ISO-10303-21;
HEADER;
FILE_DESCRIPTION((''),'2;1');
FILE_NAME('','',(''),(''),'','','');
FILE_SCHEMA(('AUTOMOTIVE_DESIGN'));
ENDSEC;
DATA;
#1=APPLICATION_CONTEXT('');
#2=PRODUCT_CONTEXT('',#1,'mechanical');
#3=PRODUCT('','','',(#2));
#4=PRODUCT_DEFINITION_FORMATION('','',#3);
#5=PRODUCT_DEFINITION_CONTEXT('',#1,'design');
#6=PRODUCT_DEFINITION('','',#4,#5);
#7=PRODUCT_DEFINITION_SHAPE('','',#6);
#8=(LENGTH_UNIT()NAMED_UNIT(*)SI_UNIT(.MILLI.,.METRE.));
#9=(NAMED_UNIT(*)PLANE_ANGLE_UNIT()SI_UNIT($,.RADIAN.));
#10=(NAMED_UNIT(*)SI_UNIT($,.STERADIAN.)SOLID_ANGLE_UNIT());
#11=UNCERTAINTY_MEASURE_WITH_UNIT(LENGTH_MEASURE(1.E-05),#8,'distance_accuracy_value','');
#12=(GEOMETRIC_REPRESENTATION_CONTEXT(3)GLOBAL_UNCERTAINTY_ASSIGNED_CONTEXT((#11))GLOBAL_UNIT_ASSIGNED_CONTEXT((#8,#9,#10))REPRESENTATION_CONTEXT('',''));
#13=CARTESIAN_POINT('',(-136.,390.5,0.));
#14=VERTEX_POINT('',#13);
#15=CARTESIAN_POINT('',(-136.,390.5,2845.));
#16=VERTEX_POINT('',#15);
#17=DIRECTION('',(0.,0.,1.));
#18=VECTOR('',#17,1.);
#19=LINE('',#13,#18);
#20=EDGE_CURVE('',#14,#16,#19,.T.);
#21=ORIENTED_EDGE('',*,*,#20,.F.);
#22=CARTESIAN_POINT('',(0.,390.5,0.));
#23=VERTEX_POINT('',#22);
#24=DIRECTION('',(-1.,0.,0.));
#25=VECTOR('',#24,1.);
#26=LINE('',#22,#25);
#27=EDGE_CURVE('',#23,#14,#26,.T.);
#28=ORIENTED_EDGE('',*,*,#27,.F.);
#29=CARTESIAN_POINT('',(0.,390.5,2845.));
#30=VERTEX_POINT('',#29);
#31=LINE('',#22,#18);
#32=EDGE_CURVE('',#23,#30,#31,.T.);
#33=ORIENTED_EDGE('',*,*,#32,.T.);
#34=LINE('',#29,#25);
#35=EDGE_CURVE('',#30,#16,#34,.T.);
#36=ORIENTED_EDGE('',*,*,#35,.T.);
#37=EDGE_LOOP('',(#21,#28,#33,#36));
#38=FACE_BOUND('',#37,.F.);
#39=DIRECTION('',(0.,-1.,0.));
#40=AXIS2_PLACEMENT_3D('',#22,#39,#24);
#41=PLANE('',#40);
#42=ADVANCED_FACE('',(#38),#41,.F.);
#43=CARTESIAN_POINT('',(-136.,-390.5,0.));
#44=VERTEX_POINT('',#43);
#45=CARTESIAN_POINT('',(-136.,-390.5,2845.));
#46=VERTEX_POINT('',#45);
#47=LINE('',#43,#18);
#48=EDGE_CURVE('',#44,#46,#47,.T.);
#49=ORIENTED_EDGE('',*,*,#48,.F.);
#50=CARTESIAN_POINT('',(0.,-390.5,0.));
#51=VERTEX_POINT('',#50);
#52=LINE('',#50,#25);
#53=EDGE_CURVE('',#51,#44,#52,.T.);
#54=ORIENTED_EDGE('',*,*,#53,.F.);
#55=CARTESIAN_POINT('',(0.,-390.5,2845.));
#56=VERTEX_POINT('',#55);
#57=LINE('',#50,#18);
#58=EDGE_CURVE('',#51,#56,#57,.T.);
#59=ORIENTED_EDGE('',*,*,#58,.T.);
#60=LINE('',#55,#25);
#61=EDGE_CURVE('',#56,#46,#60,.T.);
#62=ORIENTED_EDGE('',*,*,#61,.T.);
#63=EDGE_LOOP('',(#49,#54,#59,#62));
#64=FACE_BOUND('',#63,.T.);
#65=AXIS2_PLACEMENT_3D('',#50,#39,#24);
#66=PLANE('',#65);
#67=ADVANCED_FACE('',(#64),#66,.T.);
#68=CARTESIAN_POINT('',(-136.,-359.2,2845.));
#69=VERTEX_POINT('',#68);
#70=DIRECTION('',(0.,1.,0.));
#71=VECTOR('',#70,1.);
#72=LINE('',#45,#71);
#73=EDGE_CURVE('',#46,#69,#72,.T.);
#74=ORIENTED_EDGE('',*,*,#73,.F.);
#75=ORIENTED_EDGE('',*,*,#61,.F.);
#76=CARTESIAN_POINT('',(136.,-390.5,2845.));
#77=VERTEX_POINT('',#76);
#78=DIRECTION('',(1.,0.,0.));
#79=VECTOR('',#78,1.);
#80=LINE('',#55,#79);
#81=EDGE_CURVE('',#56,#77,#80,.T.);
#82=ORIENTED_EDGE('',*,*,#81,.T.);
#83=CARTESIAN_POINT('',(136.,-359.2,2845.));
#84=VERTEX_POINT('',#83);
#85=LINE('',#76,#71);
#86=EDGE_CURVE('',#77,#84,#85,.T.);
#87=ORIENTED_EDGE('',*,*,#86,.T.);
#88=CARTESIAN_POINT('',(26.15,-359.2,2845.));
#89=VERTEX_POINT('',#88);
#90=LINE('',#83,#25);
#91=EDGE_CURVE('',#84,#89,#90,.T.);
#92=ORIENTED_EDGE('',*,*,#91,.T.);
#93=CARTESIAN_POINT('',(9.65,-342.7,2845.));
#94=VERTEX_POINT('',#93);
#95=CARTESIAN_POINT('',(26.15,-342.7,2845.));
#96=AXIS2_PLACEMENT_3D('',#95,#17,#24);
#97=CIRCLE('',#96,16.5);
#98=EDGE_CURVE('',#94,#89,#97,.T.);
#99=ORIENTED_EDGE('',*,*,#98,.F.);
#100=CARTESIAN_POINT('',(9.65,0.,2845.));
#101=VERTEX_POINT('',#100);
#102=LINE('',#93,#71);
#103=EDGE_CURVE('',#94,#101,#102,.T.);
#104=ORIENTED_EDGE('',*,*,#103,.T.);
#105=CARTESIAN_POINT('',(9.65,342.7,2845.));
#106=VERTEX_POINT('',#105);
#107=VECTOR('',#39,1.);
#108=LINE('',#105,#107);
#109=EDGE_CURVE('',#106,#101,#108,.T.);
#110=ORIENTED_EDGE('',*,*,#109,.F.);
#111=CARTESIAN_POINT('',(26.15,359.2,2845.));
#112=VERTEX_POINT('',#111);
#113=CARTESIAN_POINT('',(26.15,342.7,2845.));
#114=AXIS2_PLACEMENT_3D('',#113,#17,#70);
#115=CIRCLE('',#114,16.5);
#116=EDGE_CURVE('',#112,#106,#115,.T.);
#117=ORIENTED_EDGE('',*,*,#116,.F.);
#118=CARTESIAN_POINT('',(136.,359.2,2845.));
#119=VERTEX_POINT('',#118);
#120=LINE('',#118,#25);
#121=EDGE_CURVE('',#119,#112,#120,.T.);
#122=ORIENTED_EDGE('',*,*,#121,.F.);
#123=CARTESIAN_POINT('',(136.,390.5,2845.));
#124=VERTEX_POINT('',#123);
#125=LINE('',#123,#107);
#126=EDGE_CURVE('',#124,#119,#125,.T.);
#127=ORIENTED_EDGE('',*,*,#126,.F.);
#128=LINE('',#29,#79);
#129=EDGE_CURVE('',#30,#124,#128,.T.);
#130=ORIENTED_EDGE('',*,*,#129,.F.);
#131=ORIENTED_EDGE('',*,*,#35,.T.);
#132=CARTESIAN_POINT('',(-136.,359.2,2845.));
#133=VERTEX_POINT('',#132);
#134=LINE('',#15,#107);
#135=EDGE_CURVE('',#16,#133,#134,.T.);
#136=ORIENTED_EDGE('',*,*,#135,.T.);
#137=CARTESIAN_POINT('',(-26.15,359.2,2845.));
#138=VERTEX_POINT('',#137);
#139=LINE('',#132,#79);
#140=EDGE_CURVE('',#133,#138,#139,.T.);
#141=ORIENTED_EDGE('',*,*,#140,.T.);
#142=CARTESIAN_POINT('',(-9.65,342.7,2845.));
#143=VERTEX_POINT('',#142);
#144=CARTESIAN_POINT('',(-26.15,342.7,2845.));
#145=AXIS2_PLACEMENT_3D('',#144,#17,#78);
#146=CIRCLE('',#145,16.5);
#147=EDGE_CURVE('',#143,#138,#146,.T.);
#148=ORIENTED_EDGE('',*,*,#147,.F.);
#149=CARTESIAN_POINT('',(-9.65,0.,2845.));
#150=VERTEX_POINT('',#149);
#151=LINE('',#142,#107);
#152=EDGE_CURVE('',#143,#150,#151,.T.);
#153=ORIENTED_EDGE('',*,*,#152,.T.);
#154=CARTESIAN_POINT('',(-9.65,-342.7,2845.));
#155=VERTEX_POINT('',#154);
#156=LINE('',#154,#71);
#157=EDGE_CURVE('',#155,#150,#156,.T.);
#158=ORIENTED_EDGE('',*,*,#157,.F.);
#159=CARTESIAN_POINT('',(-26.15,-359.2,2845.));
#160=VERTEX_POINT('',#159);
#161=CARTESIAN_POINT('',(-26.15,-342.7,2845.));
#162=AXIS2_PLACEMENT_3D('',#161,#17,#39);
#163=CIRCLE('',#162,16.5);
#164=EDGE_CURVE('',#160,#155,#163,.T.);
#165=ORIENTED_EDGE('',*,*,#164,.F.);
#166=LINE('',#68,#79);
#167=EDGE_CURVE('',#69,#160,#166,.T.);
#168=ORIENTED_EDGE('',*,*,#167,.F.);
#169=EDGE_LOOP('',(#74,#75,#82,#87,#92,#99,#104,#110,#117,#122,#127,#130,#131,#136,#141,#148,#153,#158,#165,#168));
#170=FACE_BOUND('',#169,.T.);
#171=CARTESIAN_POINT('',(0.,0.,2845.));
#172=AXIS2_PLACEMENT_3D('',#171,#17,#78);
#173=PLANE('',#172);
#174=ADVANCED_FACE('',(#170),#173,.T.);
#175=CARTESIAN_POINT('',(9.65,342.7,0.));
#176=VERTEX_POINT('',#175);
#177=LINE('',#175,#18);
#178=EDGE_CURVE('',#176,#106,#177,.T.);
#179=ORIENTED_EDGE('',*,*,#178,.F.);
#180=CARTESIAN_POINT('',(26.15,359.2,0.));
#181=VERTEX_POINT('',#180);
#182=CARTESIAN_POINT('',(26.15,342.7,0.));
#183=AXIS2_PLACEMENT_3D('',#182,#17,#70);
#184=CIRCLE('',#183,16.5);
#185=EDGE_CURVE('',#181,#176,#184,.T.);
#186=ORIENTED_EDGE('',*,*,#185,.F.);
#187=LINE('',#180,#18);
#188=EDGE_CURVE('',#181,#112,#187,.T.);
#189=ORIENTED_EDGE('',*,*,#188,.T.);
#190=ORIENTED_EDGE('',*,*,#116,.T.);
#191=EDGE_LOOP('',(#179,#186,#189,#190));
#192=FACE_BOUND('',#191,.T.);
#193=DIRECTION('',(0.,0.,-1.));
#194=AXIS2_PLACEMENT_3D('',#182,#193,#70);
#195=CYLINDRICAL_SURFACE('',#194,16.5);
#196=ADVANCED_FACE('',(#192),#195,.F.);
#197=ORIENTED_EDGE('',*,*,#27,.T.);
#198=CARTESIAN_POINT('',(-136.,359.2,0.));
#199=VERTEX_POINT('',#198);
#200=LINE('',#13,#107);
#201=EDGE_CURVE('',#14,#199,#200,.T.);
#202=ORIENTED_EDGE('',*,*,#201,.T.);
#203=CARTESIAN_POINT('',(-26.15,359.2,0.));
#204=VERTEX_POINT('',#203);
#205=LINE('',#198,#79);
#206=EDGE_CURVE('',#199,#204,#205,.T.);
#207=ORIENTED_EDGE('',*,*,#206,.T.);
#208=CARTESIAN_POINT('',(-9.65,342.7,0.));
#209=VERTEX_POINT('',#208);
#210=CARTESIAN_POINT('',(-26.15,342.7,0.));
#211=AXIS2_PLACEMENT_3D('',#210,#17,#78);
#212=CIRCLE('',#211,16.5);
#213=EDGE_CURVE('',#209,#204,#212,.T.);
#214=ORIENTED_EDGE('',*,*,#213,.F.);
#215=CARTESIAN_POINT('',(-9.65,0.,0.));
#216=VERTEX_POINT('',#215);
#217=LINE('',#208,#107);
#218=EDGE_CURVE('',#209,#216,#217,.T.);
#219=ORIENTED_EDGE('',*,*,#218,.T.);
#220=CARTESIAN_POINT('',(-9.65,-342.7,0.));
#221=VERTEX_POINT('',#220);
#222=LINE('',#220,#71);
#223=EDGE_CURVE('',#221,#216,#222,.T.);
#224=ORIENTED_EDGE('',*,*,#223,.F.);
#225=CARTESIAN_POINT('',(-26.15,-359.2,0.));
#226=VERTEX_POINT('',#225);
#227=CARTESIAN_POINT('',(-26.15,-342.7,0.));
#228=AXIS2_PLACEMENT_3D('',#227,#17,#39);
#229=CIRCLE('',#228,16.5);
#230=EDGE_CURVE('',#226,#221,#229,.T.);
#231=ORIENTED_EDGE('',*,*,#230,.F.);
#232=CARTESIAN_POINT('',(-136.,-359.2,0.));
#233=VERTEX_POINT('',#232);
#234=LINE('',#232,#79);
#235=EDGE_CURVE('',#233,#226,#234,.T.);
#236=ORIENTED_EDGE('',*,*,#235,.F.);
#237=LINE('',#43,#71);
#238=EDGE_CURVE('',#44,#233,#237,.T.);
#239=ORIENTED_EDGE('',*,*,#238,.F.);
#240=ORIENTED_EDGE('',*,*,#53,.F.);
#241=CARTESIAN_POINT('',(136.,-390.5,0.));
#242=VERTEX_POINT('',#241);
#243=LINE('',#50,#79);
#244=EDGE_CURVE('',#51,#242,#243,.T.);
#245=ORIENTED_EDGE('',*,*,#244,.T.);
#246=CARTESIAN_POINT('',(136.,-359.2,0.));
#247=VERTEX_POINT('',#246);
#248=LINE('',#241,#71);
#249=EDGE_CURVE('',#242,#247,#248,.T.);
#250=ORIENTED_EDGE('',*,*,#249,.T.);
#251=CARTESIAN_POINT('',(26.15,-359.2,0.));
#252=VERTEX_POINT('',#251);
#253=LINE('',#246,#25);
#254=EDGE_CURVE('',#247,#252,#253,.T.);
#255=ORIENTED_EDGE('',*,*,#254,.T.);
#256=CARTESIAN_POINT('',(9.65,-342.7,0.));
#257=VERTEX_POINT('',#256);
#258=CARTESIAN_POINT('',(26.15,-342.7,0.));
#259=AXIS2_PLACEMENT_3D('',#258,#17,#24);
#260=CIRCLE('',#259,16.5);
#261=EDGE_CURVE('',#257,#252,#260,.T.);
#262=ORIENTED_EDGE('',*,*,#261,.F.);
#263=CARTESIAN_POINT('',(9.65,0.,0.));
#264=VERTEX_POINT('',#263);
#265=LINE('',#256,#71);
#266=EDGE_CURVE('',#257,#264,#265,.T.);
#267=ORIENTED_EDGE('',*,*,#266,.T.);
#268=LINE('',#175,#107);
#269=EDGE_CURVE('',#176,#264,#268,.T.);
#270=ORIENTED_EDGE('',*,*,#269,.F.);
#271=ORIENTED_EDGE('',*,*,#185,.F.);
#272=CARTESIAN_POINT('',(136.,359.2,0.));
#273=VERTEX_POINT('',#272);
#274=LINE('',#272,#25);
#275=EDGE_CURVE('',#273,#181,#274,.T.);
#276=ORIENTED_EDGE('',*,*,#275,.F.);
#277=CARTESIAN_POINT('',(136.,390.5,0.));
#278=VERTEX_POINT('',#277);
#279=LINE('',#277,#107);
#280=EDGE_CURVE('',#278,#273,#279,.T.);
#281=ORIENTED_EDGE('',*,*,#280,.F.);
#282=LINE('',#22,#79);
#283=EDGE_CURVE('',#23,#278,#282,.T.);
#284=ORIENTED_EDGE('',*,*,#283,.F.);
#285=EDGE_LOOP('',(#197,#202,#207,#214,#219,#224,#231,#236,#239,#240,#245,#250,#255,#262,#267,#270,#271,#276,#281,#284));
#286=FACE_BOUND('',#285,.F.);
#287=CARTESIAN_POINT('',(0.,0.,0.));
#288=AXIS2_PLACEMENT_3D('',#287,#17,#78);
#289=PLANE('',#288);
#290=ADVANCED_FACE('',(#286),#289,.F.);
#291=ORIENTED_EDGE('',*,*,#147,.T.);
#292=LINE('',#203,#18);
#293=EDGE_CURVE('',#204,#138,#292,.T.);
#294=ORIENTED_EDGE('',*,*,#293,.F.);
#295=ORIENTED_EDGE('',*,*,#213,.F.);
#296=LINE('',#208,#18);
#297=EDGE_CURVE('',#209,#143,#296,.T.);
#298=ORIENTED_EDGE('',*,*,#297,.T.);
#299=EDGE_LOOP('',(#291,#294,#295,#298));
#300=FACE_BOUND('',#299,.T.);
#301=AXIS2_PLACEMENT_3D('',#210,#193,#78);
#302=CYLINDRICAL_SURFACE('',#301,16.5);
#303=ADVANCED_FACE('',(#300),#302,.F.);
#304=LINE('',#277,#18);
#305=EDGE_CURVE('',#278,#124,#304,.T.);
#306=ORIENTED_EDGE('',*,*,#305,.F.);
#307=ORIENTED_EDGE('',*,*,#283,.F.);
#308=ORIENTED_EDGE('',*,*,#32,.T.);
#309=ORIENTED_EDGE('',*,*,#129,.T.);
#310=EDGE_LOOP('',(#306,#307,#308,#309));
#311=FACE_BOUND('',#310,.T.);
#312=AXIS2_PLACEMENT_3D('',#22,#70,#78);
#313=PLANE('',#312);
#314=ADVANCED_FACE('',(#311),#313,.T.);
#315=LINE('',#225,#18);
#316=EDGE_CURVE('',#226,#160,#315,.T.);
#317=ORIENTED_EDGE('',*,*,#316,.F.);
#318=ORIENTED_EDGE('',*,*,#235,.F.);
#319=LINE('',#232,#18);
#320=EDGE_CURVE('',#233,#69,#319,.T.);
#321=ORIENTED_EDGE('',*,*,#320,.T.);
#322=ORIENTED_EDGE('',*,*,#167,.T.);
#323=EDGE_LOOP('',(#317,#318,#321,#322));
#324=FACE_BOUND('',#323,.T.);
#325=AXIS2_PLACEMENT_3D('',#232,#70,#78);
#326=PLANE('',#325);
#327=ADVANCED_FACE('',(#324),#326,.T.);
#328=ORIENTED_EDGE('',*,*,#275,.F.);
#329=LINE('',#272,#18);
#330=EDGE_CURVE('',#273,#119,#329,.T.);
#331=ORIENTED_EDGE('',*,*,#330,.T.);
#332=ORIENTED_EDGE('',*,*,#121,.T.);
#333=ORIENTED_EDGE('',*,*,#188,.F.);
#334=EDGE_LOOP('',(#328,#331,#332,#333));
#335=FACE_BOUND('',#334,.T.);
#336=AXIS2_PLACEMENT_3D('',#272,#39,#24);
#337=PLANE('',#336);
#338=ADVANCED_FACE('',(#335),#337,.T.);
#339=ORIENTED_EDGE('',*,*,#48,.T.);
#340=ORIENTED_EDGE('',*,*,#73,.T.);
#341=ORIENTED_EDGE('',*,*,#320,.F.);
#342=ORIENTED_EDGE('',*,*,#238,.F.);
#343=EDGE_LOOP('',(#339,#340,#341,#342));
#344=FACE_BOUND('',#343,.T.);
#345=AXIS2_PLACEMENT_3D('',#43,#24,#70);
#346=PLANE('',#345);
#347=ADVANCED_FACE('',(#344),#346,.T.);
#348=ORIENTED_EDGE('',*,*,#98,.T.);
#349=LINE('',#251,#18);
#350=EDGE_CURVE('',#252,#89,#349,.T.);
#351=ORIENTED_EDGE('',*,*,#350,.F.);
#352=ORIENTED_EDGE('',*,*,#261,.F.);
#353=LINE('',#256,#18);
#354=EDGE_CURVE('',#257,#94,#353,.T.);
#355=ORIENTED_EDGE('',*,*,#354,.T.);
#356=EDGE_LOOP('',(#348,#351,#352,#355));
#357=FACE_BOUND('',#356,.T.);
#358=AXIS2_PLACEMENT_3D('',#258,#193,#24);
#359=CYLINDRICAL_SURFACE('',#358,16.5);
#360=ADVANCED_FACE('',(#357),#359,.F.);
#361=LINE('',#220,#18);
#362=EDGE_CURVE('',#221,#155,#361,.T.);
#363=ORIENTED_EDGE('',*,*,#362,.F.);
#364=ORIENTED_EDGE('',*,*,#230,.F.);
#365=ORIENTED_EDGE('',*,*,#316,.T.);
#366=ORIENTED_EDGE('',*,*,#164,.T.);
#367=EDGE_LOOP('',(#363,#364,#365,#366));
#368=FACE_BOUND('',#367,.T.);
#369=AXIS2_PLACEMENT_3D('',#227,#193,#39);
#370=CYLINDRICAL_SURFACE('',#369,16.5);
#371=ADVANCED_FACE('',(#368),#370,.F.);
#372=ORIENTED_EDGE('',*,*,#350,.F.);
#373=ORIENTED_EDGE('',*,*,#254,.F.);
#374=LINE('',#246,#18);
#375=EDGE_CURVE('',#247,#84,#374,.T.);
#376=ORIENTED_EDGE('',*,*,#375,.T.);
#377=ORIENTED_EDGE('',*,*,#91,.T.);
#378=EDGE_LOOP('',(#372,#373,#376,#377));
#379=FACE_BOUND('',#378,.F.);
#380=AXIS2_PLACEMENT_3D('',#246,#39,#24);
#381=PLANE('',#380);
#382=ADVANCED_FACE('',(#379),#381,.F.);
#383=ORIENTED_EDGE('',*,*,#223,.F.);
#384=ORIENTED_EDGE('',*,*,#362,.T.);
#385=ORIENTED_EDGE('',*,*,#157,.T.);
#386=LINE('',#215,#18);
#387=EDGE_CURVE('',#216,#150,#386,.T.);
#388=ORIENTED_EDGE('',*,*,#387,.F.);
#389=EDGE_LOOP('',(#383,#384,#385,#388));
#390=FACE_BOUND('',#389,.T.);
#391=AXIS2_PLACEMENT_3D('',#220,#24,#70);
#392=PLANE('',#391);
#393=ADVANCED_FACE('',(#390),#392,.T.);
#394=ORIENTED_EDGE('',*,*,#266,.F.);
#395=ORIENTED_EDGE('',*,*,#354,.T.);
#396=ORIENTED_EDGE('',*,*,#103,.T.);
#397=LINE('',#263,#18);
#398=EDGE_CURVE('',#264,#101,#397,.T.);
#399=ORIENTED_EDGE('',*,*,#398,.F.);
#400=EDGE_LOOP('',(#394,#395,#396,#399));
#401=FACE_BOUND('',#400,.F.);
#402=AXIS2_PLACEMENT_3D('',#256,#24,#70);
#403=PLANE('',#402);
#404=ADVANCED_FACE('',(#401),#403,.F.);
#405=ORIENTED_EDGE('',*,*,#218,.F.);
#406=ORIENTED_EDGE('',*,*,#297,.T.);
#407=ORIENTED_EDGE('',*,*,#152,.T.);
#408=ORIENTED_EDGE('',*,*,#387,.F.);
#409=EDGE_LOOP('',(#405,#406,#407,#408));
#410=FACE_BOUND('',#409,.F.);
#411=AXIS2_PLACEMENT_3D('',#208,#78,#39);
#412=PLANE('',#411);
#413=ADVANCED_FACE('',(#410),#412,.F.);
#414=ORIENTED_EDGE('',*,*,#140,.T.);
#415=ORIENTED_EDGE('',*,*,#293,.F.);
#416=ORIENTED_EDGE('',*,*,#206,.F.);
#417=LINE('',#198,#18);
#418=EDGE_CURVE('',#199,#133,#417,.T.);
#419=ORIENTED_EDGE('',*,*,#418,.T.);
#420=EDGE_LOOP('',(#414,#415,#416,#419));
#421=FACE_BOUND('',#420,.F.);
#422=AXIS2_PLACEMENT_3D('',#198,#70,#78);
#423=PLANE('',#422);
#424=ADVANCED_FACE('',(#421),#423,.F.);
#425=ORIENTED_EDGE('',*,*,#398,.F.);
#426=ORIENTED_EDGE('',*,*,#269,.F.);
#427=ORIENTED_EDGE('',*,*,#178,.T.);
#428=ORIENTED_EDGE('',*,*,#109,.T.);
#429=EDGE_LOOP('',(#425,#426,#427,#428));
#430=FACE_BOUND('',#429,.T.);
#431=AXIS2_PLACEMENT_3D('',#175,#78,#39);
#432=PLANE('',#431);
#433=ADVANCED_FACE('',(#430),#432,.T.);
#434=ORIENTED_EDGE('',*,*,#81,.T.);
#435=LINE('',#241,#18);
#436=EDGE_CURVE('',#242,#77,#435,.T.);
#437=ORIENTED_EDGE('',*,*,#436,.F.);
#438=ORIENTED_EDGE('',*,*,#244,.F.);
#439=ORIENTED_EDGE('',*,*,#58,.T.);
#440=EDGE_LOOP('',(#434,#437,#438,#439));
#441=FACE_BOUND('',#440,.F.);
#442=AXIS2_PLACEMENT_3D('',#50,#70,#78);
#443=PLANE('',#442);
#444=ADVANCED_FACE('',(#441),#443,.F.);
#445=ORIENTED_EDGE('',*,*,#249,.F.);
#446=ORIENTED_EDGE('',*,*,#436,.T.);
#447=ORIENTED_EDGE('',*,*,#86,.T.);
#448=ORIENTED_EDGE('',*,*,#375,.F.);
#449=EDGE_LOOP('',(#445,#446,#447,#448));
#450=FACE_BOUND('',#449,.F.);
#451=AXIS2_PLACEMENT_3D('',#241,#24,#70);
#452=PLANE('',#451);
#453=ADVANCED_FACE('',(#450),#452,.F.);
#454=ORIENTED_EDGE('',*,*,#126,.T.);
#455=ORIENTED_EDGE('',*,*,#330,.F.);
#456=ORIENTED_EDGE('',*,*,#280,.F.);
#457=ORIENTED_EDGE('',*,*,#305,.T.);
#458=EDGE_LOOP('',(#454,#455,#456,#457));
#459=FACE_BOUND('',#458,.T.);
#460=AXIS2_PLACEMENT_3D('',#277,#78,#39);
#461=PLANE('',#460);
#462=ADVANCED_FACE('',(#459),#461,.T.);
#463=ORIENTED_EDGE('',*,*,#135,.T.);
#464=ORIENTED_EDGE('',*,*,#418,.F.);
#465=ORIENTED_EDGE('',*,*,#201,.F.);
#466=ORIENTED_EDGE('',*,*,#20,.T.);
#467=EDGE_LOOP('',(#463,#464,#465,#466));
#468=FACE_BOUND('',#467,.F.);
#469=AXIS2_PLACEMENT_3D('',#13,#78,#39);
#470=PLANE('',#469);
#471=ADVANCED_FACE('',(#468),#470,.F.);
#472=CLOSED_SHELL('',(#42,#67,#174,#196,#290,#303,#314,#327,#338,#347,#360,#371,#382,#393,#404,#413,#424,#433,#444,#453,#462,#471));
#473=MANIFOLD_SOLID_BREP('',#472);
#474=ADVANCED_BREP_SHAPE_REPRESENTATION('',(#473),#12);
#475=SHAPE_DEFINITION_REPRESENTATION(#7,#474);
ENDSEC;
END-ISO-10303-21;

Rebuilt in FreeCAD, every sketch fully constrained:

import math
import FreeCAD as App
import Part
import Sketcher

V = App.Vector
Q = App.Units.Quantity

doc = App.newDocument("Part")
body = doc.addObject("PartDesign::Body", "Body")

sketch1 = body.newObject("Sketcher::SketchObject", "Sketch")
sketch1.AttachmentSupport = (doc.getObject("XY_Plane"), [""])
sketch1.MapMode = "FlatFace"
sketch1.addGeometry(Part.LineSegment(V(-136, -359, 0), V(-136, -390, 0)), False)
sketch1.addGeometry(Part.LineSegment(V(-136, -390, 0), V(136, -390, 0)), False)
sketch1.addGeometry(Part.LineSegment(V(136, -390, 0), V(136, -359, 0)), False)
sketch1.addGeometry(Part.LineSegment(V(136, -359, 0), V(26, -359, 0)), False)
sketch1.addGeometry(Part.ArcOfCircle(Part.Circle(V(26, -343, 0), V(0, 0, 1), 16), math.radians(180), math.radians(270)), False)
sketch1.addGeometry(Part.LineSegment(V(10, -343, 0), V(10, 343, 0)), False)
sketch1.addGeometry(Part.ArcOfCircle(Part.Circle(V(26, 343, 0), V(0, 0, 1), 16), math.radians(90), math.radians(180)), False)
sketch1.addGeometry(Part.LineSegment(V(26, 359, 0), V(136, 359, 0)), False)
sketch1.addGeometry(Part.LineSegment(V(136, 359, 0), V(136, 390, 0)), False)
sketch1.addGeometry(Part.LineSegment(V(136, 390, 0), V(-136, 390, 0)), False)
sketch1.addGeometry(Part.LineSegment(V(-136, 390, 0), V(-136, 359, 0)), False)
sketch1.addGeometry(Part.LineSegment(V(-136, 359, 0), V(-26, 359, 0)), False)
sketch1.addGeometry(Part.ArcOfCircle(Part.Circle(V(-26, 343, 0), V(0, 0, 1), 16), math.radians(0), math.radians(90)), False)
sketch1.addGeometry(Part.LineSegment(V(-10, 343, 0), V(-10, -343, 0)), False)
sketch1.addGeometry(Part.ArcOfCircle(Part.Circle(V(-26, -343, 0), V(0, 0, 1), 16), math.radians(-90), math.radians(0)), False)
sketch1.addGeometry(Part.LineSegment(V(-26, -359, 0), V(-136, -359, 0)), False)
sketch1.addConstraint(Sketcher.Constraint("Coincident", 0, 2, 1, 1))
sketch1.addConstraint(Sketcher.Constraint("Coincident", 1, 2, 2, 1))
sketch1.addConstraint(Sketcher.Constraint("Coincident", 2, 2, 3, 1))
sketch1.addConstraint(Sketcher.Constraint("Tangent", 3, 2, 4, 2))
sketch1.addConstraint(Sketcher.Constraint("Tangent", 4, 1, 5, 1))
sketch1.addConstraint(Sketcher.Constraint("Tangent", 5, 2, 6, 2))
sketch1.addConstraint(Sketcher.Constraint("Tangent", 6, 1, 7, 1))
sketch1.addConstraint(Sketcher.Constraint("Coincident", 7, 2, 8, 1))
sketch1.addConstraint(Sketcher.Constraint("Coincident", 8, 2, 9, 1))
sketch1.addConstraint(Sketcher.Constraint("Coincident", 9, 2, 10, 1))
sketch1.addConstraint(Sketcher.Constraint("Coincident", 10, 2, 11, 1))
sketch1.addConstraint(Sketcher.Constraint("Tangent", 11, 2, 12, 2))
sketch1.addConstraint(Sketcher.Constraint("Tangent", 12, 1, 13, 1))
sketch1.addConstraint(Sketcher.Constraint("Tangent", 13, 2, 14, 2))
sketch1.addConstraint(Sketcher.Constraint("Tangent", 14, 1, 15, 1))
sketch1.addConstraint(Sketcher.Constraint("Coincident", 15, 2, 0, 1))
sketch1.addConstraint(Sketcher.Constraint("Vertical", 0))
sketch1.addConstraint(Sketcher.Constraint("Horizontal", 1))
sketch1.addConstraint(Sketcher.Constraint("Vertical", 2))
sketch1.addConstraint(Sketcher.Constraint("Horizontal", 3))
sketch1.addConstraint(Sketcher.Constraint("Vertical", 5))
sketch1.addConstraint(Sketcher.Constraint("Horizontal", 7))
sketch1.addConstraint(Sketcher.Constraint("Vertical", 8))
sketch1.addConstraint(Sketcher.Constraint("Horizontal", 9))
sketch1.addConstraint(Sketcher.Constraint("Vertical", 10))
sketch1.addConstraint(Sketcher.Constraint("Horizontal", 11))
sketch1.addConstraint(Sketcher.Constraint("Vertical", 13))
sketch1.addConstraint(Sketcher.Constraint("Horizontal", 15))
sketch1.addConstraint(Sketcher.Constraint("Equal", 4, 6))
sketch1.addConstraint(Sketcher.Constraint("Equal", 6, 12))
sketch1.addConstraint(Sketcher.Constraint("Equal", 12, 14))
sketch1.addConstraint(Sketcher.Constraint("Symmetric", 4, 3, 12, 3, -1, 1))
sketch1.addConstraint(Sketcher.Constraint("Symmetric", 0, 2, 8, 2, -1, 1))
sketch1.addConstraint(Sketcher.Constraint("Symmetric", 7, 2, 10, 2, -2))
sketch1.addConstraint(Sketcher.Constraint("Symmetric", 2, 2, 15, 2, -2))
sketch1.addConstraint(Sketcher.Constraint("Radius", 4, Q("16.5 mm")))
sketch1.addConstraint(Sketcher.Constraint("DistanceY", 0, 2, 0, 1, Q("31.3 mm")))
sketch1.addConstraint(Sketcher.Constraint("DistanceX", 0, 2, -1, 1, Q("136 mm")))
sketch1.addConstraint(Sketcher.Constraint("DistanceY", 0, 2, -1, 1, Q("390.5 mm")))
sketch1.addConstraint(Sketcher.Constraint("DistanceX", -1, 1, 4, 1, Q("9.65 mm")))
pad1 = body.newObject("PartDesign::Pad", "Pad")
pad1.Profile = sketch1
pad1.Length = 2845

doc.recompute()
